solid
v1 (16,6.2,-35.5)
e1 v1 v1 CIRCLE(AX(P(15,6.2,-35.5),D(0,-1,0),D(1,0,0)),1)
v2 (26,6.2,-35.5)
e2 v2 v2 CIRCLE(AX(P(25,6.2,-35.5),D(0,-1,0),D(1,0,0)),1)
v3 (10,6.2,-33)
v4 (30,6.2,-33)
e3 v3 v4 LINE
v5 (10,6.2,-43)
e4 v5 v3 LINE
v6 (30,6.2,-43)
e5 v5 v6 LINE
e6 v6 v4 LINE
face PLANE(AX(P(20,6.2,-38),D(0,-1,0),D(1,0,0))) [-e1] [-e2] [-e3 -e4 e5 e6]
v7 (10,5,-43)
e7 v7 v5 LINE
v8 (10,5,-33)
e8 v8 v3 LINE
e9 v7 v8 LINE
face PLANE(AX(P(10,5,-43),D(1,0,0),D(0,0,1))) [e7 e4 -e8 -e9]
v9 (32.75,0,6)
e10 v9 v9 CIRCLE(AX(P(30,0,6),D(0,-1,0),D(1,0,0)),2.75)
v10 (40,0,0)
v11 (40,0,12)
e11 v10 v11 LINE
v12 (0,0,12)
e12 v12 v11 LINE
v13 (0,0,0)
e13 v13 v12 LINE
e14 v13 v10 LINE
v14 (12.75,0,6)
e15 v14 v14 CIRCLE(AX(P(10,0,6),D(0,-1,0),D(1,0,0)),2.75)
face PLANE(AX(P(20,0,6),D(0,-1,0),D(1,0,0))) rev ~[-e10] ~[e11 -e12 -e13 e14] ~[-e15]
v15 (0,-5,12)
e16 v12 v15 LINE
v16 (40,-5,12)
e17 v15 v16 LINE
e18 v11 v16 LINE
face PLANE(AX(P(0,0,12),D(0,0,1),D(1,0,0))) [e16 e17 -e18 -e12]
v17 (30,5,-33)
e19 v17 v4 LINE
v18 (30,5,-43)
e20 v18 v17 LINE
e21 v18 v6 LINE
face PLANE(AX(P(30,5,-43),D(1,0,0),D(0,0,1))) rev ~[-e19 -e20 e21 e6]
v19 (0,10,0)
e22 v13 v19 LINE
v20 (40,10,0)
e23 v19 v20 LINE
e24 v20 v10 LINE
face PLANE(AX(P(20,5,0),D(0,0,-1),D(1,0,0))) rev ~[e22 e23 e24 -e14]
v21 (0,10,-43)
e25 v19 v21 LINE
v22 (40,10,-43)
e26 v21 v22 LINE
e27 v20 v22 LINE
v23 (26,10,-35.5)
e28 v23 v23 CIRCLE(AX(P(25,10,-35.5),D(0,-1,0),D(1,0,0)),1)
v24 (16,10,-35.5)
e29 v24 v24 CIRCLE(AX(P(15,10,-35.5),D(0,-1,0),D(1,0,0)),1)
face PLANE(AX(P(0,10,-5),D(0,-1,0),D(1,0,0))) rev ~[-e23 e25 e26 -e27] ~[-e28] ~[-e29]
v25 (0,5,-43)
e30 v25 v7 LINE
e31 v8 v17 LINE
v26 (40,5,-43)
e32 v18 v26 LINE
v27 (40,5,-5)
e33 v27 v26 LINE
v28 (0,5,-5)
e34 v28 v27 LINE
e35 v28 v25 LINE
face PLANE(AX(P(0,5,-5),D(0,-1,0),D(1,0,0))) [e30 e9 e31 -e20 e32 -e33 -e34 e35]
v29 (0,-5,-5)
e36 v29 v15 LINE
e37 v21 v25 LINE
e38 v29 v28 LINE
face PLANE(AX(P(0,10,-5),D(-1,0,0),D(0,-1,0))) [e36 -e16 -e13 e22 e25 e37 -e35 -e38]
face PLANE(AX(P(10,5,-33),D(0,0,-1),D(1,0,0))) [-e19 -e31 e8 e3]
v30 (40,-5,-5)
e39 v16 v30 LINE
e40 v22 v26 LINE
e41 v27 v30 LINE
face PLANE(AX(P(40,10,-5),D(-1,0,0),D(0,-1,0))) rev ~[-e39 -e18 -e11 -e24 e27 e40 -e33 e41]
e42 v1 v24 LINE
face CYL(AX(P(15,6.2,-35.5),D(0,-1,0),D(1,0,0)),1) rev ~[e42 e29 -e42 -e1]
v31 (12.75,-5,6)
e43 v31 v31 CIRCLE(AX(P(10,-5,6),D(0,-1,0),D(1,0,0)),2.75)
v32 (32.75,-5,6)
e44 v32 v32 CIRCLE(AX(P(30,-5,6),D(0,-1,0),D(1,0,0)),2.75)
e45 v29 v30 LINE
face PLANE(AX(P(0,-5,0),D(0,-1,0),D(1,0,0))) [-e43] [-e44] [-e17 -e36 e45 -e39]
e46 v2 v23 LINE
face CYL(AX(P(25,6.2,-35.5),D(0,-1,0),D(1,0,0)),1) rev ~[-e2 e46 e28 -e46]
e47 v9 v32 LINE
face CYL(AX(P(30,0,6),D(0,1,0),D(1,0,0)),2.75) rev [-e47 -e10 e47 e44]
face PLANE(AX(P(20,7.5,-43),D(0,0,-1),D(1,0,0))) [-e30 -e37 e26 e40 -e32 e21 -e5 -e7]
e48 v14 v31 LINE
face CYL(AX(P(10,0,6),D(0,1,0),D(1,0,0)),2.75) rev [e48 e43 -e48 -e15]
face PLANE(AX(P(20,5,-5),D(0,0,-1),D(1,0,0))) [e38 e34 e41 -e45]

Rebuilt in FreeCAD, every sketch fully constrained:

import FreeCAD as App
import Part
import Sketcher

V = App.Vector


def add_polygon(sketch, points):
    """Adds a closed chain of lines whose ends are joined by coincident constraints."""
    first, n = sketch.GeometryCount, len(points)
    for a, b in zip(points, points[1:] + points[:1]):
        sketch.addGeometry(Part.LineSegment(App.Vector(*a, 0), App.Vector(*b, 0)), False)
    for i in range(n):
        sketch.addConstraint(Sketcher.Constraint("Coincident", first + i, 2, first + (i + 1) % n, 1))

doc = App.newDocument("Part")
body = doc.addObject("PartDesign::Body", "Body")

sketch1 = body.newObject("Sketcher::SketchObject", "Sketch")
sketch1.AttachmentSupport = (doc.getObject("XZ_Plane"), [""])
sketch1.MapMode = "FlatFace"
add_polygon(sketch1, [(0, 12), (0, 0), (40, 0), (40, 12)])
sketch1.addGeometry(Part.Circle(V(10, 6, 0), V(0, 0, 1), 2.75), False)
sketch1.addGeometry(Part.Circle(V(30, 6, 0), V(0, 0, 1), 2.75), False)
sketch1.addConstraint([
    Sketcher.Constraint("Vertical", 0),
    Sketcher.Constraint("Horizontal", 1),
    Sketcher.Constraint("Vertical", 2),
    Sketcher.Constraint("Horizontal", 3),
    Sketcher.Constraint("Coincident", 0, 2, -1, 1),
    Sketcher.Constraint("Equal", 4, 5),
    Sketcher.Constraint("Horizontal", 4, 3, 5, 3),
    Sketcher.Constraint("Diameter", 4, 5.5),
    Sketcher.Constraint("DistanceX", 1, 1, 1, 2, 40.0),
    Sketcher.Constraint("DistanceY", 0, 2, 0, 1, 12.0),
    Sketcher.Constraint("DistanceX", -1, 1, 4, 3, 10.0),
    Sketcher.Constraint("DistanceY", -1, 1, 4, 3, 6.0),
    Sketcher.Constraint("DistanceX", -1, 1, 5, 3, 30.0),
])
pad1 = body.newObject("PartDesign::Pad", "Pad")
pad1.Profile = sketch1
pad1.Length = 5

sketch2 = body.newObject("Sketcher::SketchObject", "Sketch001")
sketch2.AttachmentSupport = (doc.getObject("XY_Plane"), [""])
sketch2.MapMode = "FlatFace"
add_polygon(sketch2, [(0, 10), (40, 10), (40, -5), (0, -5)])
sketch2.addConstraint([
    Sketcher.Constraint("Horizontal", 0),
    Sketcher.Constraint("Vertical", 1),
    Sketcher.Constraint("Horizontal", 2),
    Sketcher.Constraint("Vertical", 3),
    Sketcher.Constraint("PointOnObject", 2, 2, -2),
    Sketcher.Constraint("DistanceX", 0, 1, 0, 2, 40.0),
    Sketcher.Constraint("DistanceY", 1, 2, 1, 1, 15.0),
    Sketcher.Constraint("DistanceY", -1, 1, 0, 2, 10.0),
])
pad2 = body.newObject("PartDesign::Pad", "Pad001")
pad2.Profile = sketch2
pad2.Length = 5
pad2.Reversed = True

sketch3 = body.newObject("Sketcher::SketchObject", "Sketch002")
sketch3.AttachmentSupport = (doc.getObject("XY_Plane"), [""])
sketch3.MapMode = "FlatFace"
sketch3.AttachmentOffset = App.Placement(V(0, 0, -5), App.Rotation())
add_polygon(sketch3, [(0, 5), (0, 10), (40, 10), (40, 5)])
sketch3.addConstraint([
    Sketcher.Constraint("Vertical", 0),
    Sketcher.Constraint("Horizontal", 1),
    Sketcher.Constraint("Vertical", 2),
    Sketcher.Constraint("Horizontal", 3),
    Sketcher.Constraint("PointOnObject", 0, 2, -2),
    Sketcher.Constraint("DistanceX", 1, 1, 1, 2, 40.0),
    Sketcher.Constraint("DistanceY", 0, 1, 0, 2, 5.0),
    Sketcher.Constraint("DistanceY", -1, 1, 0, 2, 10.0),
])
pad3 = body.newObject("PartDesign::Pad", "Pad002")
pad3.Profile = sketch3
pad3.Length = 38
pad3.Reversed = True

sketch4 = body.newObject("Sketcher::SketchObject", "Sketch003")
sketch4.AttachmentSupport = (doc.getObject("XZ_Plane"), [""])
sketch4.MapMode = "FlatFace"
sketch4.AttachmentOffset = App.Placement(V(0, 0, -5), App.Rotation())
add_polygon(sketch4, [(10, -33), (10, -43), (30, -43), (30, -33)])
sketch4.addConstraint([
    Sketcher.Constraint("Vertical", 0),
    Sketcher.Constraint("Horizontal", 1),
    Sketcher.Constraint("Vertical", 2),
    Sketcher.Constraint("Horizontal", 3),
    Sketcher.Constraint("DistanceX", 1, 1, 1, 2, 20.0),
    Sketcher.Constraint("DistanceY", 0, 2, 0, 1, 10.0),
    Sketcher.Constraint("DistanceX", -1, 1, 0, 2, 10.0),
    Sketcher.Constraint("DistanceY", 0, 2, -1, 1, 43.0),
])
pocket1 = body.newObject("PartDesign::Pocket", "Pocket")
pocket1.Profile = sketch4
pocket1.Length = 1.2

sketch5 = body.newObject("Sketcher::SketchObject", "Sketch004")
sketch5.AttachmentSupport = (doc.getObject("XZ_Plane"), [""])
sketch5.MapMode = "FlatFace"
sketch5.AttachmentOffset = App.Placement(V(0, 0, -6.2), App.Rotation())
sketch5.addGeometry([
    Part.Circle(V(15, -35.5, 0), V(0, 0, 1), 1),
    Part.Circle(V(25, -35.5, 0), V(0, 0, 1), 1),
], False)
sketch5.addConstraint([
    Sketcher.Constraint("Equal", 0, 1),
    Sketcher.Constraint("Horizontal", 0, 3, 1, 3),
    Sketcher.Constraint("Diameter", 0, 2.0),
    Sketcher.Constraint("DistanceX", -1, 1, 0, 3, 15.0),
    Sketcher.Constraint("DistanceX", -1, 1, 1, 3, 25.0),
    Sketcher.Constraint("DistanceY", 0, 3, -1, 1, 35.5),
])
pocket2 = body.newObject("PartDesign::Pocket", "Pocket001")
pocket2.Profile = sketch5
pocket2.Length = 25

doc.recompute()
